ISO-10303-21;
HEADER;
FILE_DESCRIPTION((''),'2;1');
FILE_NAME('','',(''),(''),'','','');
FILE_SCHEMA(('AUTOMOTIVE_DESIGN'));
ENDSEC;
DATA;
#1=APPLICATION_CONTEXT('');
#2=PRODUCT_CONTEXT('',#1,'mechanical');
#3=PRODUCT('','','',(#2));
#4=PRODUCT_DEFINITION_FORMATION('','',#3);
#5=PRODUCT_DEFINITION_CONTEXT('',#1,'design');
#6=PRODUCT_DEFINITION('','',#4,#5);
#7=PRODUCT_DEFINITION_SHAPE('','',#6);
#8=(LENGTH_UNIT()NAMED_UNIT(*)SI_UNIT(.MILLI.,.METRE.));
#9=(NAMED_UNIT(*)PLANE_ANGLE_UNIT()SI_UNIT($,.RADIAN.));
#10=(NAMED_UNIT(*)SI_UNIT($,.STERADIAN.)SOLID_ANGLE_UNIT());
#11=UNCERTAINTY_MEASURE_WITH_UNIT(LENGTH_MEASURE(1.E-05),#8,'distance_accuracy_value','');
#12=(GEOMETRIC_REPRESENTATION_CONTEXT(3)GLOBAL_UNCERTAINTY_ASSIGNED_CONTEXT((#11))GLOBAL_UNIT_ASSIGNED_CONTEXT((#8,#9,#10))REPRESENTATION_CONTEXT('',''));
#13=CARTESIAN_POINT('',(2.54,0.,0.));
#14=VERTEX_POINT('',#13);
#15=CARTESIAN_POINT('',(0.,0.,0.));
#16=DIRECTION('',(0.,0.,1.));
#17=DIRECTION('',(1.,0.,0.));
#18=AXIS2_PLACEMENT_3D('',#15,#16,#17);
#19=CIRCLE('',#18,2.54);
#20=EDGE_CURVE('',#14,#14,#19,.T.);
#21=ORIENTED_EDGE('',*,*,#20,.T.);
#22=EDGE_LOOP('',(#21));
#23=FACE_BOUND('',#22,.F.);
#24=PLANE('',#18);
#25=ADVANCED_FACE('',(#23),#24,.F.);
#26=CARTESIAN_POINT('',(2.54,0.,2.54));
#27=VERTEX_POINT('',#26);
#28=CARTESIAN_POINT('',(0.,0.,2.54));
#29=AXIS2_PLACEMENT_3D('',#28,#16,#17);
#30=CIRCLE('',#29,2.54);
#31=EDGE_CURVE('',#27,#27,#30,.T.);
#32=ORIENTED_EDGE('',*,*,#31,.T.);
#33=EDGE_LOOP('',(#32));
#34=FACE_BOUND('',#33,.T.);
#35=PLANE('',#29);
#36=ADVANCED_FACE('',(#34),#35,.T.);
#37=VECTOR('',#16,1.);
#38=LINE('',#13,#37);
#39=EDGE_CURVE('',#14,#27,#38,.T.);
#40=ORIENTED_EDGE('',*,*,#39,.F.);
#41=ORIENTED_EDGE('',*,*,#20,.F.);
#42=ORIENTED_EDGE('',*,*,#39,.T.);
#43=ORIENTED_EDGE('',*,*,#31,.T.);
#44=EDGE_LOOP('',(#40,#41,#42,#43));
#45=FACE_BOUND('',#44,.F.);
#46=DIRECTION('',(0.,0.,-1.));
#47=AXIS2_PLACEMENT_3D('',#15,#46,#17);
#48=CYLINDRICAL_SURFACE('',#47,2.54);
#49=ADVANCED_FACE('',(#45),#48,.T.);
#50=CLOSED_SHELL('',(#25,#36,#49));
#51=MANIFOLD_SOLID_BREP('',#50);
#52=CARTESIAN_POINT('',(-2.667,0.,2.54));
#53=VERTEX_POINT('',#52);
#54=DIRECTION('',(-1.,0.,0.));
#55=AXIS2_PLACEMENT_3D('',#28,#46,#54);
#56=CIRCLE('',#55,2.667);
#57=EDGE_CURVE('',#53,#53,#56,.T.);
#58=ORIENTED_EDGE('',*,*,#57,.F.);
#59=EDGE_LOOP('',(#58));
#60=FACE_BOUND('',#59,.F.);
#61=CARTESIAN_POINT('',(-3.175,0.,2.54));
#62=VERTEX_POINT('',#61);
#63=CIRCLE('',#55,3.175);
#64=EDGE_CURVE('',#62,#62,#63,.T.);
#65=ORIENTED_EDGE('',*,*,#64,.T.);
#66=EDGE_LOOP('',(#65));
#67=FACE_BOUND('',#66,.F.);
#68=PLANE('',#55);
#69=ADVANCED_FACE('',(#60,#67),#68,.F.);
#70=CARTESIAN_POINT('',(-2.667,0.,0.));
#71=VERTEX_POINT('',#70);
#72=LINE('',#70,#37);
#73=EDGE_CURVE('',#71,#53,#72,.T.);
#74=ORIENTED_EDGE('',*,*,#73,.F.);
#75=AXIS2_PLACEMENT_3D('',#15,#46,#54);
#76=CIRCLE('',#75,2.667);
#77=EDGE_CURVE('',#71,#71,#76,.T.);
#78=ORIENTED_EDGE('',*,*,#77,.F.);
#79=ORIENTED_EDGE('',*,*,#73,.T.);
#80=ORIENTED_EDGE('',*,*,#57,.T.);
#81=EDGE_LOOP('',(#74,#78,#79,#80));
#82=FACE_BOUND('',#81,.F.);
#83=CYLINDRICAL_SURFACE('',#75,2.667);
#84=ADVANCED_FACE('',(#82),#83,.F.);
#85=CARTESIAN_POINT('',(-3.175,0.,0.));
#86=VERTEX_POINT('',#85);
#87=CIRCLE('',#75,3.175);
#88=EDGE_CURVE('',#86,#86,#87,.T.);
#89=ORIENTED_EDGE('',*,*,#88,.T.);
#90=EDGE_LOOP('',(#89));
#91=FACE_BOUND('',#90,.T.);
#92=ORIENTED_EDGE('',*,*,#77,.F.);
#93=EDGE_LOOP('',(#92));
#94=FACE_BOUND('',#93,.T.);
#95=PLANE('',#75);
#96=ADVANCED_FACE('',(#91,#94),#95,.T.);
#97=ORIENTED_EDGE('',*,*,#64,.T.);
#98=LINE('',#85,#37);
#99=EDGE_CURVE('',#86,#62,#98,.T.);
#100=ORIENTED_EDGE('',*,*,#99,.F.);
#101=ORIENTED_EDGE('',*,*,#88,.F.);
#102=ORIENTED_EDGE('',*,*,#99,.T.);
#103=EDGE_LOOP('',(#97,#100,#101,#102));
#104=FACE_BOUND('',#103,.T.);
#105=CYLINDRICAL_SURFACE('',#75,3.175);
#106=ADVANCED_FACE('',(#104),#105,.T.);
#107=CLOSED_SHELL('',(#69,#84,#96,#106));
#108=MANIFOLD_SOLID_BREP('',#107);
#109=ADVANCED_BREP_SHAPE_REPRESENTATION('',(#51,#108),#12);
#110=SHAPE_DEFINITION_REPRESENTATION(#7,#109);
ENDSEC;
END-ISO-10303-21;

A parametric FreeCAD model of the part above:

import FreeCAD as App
import Part
import Sketcher

V = App.Vector
Q = App.Units.Quantity

doc = App.newDocument("Part")
body = doc.addObject("PartDesign::Body", "Body")
body.AllowCompound = True

# Sketch on XY plane
sketch1 = body.newObject("Sketcher::SketchObject", "Sketch")
sketch1.AttachmentSupport = (doc.getObject("XY_Plane"), [""])
sketch1.MapMode = "FlatFace"
sketch1.addGeometry(Part.Circle(V(0, 0, 0), V(0, 0, 1), 2.54), False)
sketch1.addConstraint(Sketcher.Constraint("Coincident", 0, 3, -1, 1))
sketch1.addConstraint(Sketcher.Constraint("Diameter", 0, Q("0.2 in")))
pad1 = body.newObject("PartDesign::Pad", "Pad")
pad1.Profile = sketch1
pad1.Length = Q("0.1 in")

# Sketch on XY plane
sketch2 = body.newObject("Sketcher::SketchObject", "Sketch001")
sketch2.AttachmentSupport = (doc.getObject("XY_Plane"), [""])
sketch2.MapMode = "FlatFace"
sketch2.addGeometry(Part.Circle(V(0, 0, 0), V(0, 0, 1), 3.175), False)
sketch2.addGeometry(Part.Circle(V(0, 0, 0), V(0, 0, 1), 2.667), False)
sketch2.addConstraint(Sketcher.Constraint("Coincident", 0, 3, -1, 1))
sketch2.addConstraint(Sketcher.Constraint("Coincident", 1, 3, -1, 1))
sketch2.addConstraint(Sketcher.Constraint("Diameter", 0, Q("0.25 in")))
sketch2.addConstraint(Sketcher.Constraint("Diameter", 1, Q("0.21 in")))
pad2 = body.newObject("PartDesign::Pad", "Pad001")
pad2.Profile = sketch2
pad2.Length = Q("0.1 in")

doc.recompute()
